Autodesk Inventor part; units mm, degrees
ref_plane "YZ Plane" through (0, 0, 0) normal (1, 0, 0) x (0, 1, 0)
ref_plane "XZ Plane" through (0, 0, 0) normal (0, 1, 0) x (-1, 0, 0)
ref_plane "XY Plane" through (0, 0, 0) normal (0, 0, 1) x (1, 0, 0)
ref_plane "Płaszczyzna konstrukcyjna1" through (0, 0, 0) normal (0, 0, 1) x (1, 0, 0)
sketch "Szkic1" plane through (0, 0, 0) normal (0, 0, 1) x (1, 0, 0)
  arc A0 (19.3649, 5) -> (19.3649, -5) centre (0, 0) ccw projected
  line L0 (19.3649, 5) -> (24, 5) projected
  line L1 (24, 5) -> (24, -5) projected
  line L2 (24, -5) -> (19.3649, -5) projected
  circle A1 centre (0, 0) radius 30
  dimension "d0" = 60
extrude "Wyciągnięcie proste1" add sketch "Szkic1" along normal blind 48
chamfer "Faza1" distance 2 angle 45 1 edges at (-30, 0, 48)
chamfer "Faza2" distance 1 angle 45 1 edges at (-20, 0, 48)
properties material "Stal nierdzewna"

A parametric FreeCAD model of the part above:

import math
import FreeCAD as App
import Part
import Sketcher
Q = App.Units.Quantity


def edges_at(feature, points):
    """Names of the edges that pass closest to the given points."""
    edges = feature.Shape.Edges
    near = lambda p: min(range(len(edges)), key=lambda i: edges[i].distToShape(Part.Vertex(*p))[0])
    return sorted({f"Edge{near(p) + 1}" for p in points})

doc = App.newDocument("Part")
body = doc.addObject("PartDesign::Body", "Body")

# Sketch on XY plane
sketch1 = doc.addObject("Sketcher::SketchObject", "Sketch")
body.addObject(sketch1)
sketch1.AttachmentSupport = (doc.XY_Plane, [""])
sketch1.MapMode = "FlatFace"
sketch1.addGeometry(Part.Circle(App.Vector(0, 0, 0), App.Vector(0, 0, 1), 30), False)
sketch1.addGeometry(Part.ArcOfCircle(Part.Circle(App.Vector(0, 0, 0), App.Vector(0, 0, 1), 20), math.radians(14), math.radians(346)), False)
sketch1.addGeometry(Part.LineSegment(App.Vector(19.4, 5, 0), App.Vector(24, 5, 0)), False)
sketch1.addGeometry(Part.LineSegment(App.Vector(24, 5, 0), App.Vector(24, -5, 0)), False)
sketch1.addGeometry(Part.LineSegment(App.Vector(24, -5, 0), App.Vector(19.4, -5, 0)), False)
sketch1.addConstraint(Sketcher.Constraint("Coincident", 1, 1, 2, 1))
sketch1.addConstraint(Sketcher.Constraint("Coincident", 2, 2, 3, 1))
sketch1.addConstraint(Sketcher.Constraint("Coincident", 3, 2, 4, 1))
sketch1.addConstraint(Sketcher.Constraint("Coincident", 4, 2, 1, 2))
sketch1.addConstraint(Sketcher.Constraint("Horizontal", 2))
sketch1.addConstraint(Sketcher.Constraint("Vertical", 3))
sketch1.addConstraint(Sketcher.Constraint("Horizontal", 4))
sketch1.addConstraint(Sketcher.Constraint("Coincident", 0, 3, -1, 1))
sketch1.addConstraint(Sketcher.Constraint("Coincident", 1, 3, -1, 1))
sketch1.addConstraint(Sketcher.Constraint("Vertical", 1, 1, 4, 2))
sketch1.addConstraint(Sketcher.Constraint("Diameter", 0, Q("60 mm")))
sketch1.addConstraint(Sketcher.Constraint("Radius", 1, Q("20 mm")))
sketch1.addConstraint(Sketcher.Constraint("DistanceY", 3, 2, 3, 1, Q("10 mm")))
sketch1.addConstraint(Sketcher.Constraint("DistanceX", -1, 1, 2, 2, Q("24 mm")))
pad1 = doc.addObject("PartDesign::Pad", "Pad")
body.addObject(pad1)
pad1.Profile = sketch1
pad1.Length = 48
doc.recompute()

chamfer = doc.addObject("PartDesign::Chamfer", "Chamfer")
body.addObject(chamfer)
chamfer.Base = (pad1, edges_at(pad1, [(-30, 0, 48)]))
chamfer.Size = 2
doc.recompute()

chamfer2 = doc.addObject("PartDesign::Chamfer", "Chamfer001")
body.addObject(chamfer2)
chamfer2.Base = (chamfer, edges_at(chamfer, [(-20, 0, 48)]))
chamfer2.Size = 1

doc.recompute()
